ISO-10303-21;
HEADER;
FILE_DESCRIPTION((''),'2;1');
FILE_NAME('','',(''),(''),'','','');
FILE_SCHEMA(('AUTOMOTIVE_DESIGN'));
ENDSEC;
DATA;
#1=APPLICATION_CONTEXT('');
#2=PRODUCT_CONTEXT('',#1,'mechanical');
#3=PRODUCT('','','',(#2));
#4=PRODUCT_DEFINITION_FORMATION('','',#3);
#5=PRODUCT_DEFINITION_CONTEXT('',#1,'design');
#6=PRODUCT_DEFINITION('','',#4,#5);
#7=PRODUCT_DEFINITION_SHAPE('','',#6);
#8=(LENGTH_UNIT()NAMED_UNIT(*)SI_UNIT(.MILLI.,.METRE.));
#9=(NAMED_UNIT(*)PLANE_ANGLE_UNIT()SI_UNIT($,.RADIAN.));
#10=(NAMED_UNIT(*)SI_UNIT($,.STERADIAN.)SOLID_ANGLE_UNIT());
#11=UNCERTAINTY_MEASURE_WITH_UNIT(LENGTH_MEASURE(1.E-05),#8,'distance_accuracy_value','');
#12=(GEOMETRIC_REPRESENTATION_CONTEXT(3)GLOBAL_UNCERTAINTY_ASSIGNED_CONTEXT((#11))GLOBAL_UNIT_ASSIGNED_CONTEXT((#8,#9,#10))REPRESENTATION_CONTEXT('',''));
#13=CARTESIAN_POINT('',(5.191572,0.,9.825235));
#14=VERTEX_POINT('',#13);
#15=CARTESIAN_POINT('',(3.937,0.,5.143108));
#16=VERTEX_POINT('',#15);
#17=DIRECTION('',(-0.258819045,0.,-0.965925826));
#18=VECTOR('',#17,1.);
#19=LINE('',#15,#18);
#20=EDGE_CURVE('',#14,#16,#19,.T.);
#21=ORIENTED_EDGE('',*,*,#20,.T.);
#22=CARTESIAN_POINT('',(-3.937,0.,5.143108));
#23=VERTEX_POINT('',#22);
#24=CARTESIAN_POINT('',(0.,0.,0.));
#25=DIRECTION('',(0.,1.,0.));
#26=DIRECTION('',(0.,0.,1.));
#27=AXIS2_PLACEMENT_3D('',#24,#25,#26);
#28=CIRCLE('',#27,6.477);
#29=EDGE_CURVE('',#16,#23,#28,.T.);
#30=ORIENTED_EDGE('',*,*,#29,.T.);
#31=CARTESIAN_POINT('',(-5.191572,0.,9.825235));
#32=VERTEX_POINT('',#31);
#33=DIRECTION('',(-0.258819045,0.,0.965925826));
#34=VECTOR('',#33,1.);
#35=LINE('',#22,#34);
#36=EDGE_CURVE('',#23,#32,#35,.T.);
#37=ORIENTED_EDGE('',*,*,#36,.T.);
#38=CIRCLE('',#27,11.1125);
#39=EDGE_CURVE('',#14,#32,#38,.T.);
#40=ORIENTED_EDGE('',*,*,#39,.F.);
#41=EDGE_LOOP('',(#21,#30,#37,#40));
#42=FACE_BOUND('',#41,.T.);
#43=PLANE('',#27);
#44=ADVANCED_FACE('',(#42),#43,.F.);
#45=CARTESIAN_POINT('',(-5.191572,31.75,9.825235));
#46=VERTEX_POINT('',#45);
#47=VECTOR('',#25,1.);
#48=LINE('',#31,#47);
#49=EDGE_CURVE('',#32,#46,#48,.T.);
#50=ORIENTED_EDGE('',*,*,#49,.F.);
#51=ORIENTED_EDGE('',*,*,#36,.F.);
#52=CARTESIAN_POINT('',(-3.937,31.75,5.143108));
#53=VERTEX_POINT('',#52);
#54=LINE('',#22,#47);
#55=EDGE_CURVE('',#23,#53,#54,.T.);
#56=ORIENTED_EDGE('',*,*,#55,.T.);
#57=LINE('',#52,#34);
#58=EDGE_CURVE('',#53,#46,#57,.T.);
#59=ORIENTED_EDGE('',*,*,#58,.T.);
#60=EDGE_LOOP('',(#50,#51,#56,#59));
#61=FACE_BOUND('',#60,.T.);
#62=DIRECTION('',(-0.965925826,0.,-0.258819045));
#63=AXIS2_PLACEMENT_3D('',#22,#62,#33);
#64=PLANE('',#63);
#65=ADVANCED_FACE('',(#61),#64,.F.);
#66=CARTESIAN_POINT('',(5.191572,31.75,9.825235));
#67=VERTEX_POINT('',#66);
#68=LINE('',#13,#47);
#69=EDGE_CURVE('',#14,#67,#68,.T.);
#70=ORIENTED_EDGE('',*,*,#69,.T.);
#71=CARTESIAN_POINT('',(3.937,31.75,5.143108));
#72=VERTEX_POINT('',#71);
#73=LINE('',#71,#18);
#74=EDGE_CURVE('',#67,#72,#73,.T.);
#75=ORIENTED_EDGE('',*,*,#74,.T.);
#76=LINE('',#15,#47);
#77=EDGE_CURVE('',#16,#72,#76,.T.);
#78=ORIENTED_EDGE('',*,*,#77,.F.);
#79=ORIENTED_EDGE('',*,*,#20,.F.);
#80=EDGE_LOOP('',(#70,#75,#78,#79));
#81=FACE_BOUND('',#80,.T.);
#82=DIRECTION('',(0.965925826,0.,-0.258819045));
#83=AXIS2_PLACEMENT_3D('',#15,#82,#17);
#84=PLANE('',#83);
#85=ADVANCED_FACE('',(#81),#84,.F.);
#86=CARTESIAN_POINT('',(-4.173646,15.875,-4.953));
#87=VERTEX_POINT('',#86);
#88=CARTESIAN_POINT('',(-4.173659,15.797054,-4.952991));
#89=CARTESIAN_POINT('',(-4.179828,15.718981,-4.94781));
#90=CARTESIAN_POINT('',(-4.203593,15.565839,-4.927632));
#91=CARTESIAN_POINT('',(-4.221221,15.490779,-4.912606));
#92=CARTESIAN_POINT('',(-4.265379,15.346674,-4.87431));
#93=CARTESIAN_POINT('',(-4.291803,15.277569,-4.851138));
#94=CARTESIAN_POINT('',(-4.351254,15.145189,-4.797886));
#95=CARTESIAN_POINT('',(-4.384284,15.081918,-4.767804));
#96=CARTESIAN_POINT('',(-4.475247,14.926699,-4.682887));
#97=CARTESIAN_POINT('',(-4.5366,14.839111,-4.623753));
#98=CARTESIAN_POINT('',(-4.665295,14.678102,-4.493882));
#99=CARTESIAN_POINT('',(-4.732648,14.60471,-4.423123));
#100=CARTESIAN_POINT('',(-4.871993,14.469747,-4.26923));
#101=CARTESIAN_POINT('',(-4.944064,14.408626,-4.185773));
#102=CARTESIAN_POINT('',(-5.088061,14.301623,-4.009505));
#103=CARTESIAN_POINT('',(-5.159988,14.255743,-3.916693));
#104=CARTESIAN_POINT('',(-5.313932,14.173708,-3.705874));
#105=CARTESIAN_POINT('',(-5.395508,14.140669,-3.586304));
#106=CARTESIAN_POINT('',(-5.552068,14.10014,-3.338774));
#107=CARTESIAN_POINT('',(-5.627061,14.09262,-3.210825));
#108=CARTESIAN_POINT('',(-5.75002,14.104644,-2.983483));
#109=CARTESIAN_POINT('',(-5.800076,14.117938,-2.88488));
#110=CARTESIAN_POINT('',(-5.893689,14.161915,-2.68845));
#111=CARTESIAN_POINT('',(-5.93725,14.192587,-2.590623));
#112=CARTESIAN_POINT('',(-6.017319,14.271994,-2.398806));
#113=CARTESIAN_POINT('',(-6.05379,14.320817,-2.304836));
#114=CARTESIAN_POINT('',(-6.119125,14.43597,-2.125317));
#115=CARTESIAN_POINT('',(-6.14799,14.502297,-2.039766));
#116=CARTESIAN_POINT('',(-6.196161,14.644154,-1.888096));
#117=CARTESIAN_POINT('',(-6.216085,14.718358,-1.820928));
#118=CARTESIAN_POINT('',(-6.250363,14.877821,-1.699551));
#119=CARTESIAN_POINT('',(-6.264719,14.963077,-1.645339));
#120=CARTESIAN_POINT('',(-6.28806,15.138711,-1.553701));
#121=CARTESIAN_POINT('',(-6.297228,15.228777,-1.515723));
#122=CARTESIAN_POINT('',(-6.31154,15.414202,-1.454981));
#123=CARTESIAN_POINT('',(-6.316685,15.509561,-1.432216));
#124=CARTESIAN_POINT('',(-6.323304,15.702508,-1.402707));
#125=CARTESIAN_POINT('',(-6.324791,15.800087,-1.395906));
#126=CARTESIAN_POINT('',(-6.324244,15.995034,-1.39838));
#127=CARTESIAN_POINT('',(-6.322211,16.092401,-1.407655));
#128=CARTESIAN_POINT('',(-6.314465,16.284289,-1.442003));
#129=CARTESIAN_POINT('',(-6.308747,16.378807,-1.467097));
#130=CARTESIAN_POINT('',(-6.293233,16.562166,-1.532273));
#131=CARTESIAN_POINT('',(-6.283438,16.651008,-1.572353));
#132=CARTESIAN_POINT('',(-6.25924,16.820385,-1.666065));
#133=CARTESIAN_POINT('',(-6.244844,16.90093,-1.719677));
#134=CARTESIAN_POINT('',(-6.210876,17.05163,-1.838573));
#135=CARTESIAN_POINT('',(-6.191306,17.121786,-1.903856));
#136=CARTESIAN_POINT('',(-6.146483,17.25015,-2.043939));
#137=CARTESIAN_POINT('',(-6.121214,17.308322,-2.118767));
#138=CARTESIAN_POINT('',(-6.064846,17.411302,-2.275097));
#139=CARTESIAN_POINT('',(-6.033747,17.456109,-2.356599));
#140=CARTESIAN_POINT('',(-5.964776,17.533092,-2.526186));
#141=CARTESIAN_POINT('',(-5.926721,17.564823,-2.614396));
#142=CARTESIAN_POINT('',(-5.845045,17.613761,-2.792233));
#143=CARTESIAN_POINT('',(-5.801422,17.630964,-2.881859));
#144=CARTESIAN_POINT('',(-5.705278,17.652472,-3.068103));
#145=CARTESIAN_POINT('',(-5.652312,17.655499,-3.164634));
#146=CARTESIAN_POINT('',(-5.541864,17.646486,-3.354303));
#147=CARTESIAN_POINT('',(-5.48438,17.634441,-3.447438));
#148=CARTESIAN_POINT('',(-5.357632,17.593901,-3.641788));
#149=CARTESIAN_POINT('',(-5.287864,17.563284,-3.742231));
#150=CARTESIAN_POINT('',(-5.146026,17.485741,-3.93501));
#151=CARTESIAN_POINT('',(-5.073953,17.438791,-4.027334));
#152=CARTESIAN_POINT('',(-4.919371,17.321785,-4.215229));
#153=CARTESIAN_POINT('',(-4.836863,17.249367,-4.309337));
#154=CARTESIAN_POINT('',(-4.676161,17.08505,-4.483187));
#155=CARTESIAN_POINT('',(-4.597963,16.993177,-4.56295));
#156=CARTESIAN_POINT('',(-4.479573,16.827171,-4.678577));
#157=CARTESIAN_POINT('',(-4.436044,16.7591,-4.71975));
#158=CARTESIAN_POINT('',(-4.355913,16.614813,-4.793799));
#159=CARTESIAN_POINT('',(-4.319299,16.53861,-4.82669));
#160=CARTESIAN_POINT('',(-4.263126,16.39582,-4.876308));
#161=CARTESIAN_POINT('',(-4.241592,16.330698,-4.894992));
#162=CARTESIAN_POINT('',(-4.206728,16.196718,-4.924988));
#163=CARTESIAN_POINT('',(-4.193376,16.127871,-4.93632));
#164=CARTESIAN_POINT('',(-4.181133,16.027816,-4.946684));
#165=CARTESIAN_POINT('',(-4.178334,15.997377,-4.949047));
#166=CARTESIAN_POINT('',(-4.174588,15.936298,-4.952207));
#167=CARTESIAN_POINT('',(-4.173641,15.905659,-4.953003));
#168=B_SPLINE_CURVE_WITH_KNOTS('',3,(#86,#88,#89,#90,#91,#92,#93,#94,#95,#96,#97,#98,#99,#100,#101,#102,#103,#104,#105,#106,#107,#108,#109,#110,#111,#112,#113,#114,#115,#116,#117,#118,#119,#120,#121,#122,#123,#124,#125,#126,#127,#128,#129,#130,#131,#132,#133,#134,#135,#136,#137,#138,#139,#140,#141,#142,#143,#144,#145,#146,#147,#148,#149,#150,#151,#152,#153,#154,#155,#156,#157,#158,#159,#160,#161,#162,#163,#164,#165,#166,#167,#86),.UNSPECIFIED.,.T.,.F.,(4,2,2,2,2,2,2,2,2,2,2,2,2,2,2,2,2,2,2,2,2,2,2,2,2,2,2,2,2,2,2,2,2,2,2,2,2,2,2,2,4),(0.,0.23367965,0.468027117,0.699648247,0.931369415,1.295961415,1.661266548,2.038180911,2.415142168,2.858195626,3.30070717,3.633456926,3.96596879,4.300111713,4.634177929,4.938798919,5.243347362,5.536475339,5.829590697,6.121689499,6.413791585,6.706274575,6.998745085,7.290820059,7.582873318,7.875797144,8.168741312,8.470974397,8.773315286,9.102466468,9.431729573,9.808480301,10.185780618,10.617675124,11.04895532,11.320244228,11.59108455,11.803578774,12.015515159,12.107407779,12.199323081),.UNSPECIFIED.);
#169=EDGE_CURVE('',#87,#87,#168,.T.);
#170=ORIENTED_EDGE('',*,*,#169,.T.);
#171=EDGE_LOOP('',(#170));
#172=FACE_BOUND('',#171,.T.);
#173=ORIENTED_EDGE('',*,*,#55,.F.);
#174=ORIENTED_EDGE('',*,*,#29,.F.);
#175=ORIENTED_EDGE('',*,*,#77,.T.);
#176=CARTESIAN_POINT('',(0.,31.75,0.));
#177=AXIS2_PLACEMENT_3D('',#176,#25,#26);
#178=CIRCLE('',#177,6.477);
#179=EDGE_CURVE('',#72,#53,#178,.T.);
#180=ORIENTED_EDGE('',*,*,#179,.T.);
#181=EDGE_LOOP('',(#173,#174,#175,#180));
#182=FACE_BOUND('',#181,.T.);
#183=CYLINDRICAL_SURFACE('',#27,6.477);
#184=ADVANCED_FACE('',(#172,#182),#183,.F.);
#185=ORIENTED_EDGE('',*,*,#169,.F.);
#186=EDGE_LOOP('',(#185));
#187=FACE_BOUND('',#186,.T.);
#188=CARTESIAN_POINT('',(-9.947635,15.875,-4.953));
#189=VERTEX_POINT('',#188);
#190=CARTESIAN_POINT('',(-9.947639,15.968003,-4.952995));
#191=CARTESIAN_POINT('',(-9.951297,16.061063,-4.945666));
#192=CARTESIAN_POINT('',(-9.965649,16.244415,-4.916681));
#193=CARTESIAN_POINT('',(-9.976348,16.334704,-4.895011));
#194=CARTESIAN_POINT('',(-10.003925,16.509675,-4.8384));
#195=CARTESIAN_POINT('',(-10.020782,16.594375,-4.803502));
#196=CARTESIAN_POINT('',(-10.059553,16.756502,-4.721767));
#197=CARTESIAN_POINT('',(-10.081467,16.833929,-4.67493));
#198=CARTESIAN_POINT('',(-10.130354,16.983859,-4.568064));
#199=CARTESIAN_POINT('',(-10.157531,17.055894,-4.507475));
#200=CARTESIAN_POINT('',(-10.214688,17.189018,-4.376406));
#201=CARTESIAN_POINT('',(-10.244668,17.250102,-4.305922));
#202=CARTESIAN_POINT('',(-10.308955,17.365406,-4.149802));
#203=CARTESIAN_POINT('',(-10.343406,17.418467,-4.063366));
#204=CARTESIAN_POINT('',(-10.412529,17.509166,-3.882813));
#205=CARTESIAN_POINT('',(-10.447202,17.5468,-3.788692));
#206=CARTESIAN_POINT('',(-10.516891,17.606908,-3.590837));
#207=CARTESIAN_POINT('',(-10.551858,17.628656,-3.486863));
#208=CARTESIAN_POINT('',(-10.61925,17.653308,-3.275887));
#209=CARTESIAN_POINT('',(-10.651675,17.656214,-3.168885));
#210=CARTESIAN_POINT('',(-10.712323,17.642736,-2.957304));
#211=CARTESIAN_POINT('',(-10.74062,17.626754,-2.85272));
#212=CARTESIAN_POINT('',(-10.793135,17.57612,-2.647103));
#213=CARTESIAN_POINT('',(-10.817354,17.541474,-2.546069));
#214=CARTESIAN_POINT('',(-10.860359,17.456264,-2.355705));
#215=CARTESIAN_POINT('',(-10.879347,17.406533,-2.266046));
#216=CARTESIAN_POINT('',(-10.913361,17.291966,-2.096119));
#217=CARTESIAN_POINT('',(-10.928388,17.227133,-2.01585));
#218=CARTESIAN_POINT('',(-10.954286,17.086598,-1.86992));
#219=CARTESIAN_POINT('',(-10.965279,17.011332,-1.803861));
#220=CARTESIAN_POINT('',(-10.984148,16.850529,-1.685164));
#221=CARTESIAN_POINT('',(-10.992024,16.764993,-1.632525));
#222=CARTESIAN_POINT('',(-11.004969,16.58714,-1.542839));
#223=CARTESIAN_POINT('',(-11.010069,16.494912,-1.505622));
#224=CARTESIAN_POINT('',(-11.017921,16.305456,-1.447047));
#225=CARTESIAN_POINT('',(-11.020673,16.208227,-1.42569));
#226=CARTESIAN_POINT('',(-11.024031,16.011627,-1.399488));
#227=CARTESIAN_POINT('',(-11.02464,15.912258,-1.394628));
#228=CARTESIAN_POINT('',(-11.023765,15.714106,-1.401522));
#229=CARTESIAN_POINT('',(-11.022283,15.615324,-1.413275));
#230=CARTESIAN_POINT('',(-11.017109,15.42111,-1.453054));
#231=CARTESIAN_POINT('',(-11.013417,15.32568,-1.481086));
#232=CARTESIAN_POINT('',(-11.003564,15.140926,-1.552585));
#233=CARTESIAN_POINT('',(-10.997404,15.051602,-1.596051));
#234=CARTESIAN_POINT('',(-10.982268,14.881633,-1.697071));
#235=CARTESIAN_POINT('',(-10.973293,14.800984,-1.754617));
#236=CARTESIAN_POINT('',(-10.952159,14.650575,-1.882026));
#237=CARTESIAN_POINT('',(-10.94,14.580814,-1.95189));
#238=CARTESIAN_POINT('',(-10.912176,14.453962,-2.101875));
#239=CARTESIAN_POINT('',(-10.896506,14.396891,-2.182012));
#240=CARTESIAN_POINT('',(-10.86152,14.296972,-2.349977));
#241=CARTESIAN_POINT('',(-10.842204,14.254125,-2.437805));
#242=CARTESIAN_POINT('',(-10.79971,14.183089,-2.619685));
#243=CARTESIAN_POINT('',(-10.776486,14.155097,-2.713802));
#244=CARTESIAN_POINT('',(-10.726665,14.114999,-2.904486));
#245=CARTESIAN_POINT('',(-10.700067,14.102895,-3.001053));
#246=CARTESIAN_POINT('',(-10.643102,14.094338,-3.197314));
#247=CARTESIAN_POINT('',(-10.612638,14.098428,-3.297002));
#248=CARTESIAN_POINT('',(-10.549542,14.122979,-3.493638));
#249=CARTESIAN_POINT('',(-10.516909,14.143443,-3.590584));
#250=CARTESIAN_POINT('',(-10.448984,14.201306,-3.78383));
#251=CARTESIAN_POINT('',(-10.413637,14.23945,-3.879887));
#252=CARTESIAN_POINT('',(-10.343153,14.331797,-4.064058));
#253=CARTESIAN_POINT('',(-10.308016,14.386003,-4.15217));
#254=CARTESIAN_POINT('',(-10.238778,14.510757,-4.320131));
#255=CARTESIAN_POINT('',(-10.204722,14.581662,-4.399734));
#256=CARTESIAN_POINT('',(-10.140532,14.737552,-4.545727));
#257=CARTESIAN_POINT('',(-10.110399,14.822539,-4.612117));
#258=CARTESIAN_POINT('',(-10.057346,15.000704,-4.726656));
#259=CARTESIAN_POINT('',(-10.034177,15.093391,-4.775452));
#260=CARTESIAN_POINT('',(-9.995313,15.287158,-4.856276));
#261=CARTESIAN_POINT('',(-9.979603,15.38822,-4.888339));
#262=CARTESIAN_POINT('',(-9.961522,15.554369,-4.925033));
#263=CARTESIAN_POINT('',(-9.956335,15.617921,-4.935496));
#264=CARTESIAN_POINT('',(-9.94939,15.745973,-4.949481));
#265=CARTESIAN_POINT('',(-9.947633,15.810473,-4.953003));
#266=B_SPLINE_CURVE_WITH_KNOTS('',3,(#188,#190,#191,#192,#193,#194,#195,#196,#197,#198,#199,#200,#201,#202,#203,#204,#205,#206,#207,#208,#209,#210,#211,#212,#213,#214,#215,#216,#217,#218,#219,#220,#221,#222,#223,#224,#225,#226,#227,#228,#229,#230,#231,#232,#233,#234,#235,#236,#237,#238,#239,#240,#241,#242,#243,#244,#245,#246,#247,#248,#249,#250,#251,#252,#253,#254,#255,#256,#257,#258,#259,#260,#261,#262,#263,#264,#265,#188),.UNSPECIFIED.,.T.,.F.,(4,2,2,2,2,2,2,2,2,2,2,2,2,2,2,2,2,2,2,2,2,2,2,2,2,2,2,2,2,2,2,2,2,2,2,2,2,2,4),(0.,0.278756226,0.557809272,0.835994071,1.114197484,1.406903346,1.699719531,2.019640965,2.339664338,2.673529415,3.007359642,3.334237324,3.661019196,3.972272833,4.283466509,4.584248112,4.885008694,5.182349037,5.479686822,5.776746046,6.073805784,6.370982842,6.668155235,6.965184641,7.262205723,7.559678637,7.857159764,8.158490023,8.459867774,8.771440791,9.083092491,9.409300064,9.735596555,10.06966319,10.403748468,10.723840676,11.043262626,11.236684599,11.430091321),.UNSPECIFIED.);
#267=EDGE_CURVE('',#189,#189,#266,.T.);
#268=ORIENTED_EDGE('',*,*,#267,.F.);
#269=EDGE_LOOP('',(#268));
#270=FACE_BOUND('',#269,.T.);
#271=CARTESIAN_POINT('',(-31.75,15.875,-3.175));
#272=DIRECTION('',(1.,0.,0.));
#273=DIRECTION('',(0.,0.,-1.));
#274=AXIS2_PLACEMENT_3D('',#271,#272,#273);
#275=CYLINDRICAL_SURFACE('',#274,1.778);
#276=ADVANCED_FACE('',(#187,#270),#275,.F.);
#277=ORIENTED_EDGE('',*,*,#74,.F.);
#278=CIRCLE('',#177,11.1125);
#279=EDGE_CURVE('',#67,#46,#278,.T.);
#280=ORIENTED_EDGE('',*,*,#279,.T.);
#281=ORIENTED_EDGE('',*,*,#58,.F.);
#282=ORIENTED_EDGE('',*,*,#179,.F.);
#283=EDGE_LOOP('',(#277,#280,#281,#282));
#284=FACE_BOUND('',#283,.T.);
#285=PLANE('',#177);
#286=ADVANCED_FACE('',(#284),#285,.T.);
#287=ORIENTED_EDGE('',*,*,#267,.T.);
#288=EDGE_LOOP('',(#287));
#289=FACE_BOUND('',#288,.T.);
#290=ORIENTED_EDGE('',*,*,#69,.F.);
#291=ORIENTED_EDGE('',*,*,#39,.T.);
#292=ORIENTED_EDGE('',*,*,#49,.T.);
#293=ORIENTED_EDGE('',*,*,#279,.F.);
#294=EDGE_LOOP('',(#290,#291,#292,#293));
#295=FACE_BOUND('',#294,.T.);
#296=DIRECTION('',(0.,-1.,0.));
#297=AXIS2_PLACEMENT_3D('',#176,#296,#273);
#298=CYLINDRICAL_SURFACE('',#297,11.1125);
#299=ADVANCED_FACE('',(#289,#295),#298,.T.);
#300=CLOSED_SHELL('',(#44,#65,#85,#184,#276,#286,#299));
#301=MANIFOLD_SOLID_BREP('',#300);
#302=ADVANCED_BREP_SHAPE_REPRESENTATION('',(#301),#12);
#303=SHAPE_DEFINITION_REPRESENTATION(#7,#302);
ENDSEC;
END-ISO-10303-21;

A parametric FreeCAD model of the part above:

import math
import FreeCAD as App
import Part
import Sketcher
Q = App.Units.Quantity

doc = App.newDocument("Part")
body = doc.addObject("PartDesign::Body", "Body")

sketch1 = doc.addObject("Sketcher::SketchObject", "Sketch")
body.addObject(sketch1)
sketch1.AttachmentSupport = (doc.XZ_Plane, [""])
sketch1.MapMode = "FlatFace"
sketch1.addGeometry(Part.Circle(App.Vector(0, 0, 0), App.Vector(0, 0, 1), 11), False)
sketch1.addConstraint(Sketcher.Constraint("Coincident", 0, 3, -1, 1))
sketch1.addConstraint(Sketcher.Constraint("Diameter", 0, Q("0.875 in")))
pad1 = doc.addObject("PartDesign::Pad", "Pad")
body.addObject(pad1)
pad1.Profile = sketch1
pad1.Length = Q("1.25 in")
pad1.Reversed = True

sketch2 = doc.addObject("Sketcher::SketchObject", "Sketch001")
body.addObject(sketch2)
sketch2.AttachmentSupport = (doc.XZ_Plane, [""])
sketch2.MapMode = "FlatFace"
sketch2.AttachmentOffset = App.Placement(App.Vector(0, 0, -1.25 * 25.4), App.Rotation())
sketch2.addGeometry(Part.LineSegment(App.Vector(-3.9, 5.1, 0), App.Vector(-5.2, 9.8, 0)), False)
sketch2.addGeometry(Part.ArcOfCircle(Part.Circle(App.Vector(0, 0, 0), App.Vector(0, 0, 1), 11.1), math.radians(62), math.radians(118)), False)
sketch2.addGeometry(Part.LineSegment(App.Vector(5.2, 9.8, 0), App.Vector(3.9, 5.1, 0)), False)
sketch2.addGeometry(Part.ArcOfCircle(Part.Circle(App.Vector(0, 0, 0), App.Vector(0, 0, 1), 6.5), math.radians(127), math.radians(413)), False)
sketch2.addConstraint(Sketcher.Constraint("Coincident", 0, 2, 1, 2))
sketch2.addConstraint(Sketcher.Constraint("Coincident", 1, 1, 2, 1))
sketch2.addConstraint(Sketcher.Constraint("Coincident", 2, 2, 3, 2))
sketch2.addConstraint(Sketcher.Constraint("Coincident", 3, 1, 0, 1))
sketch2.addConstraint(Sketcher.Constraint("Coincident", 1, 3, -1, 1))
sketch2.addConstraint(Sketcher.Constraint("Coincident", 3, 3, -1, 1))
sketch2.addConstraint(Sketcher.Constraint("Horizontal", 0, 2, 1, 1))
sketch2.addConstraint(Sketcher.Constraint("Horizontal", 2, 2, 3, 1))
sketch2.addConstraint(Sketcher.Constraint("Angle", 0, Q("105 deg")))
sketch2.addConstraint(Sketcher.Constraint("Radius", 1, Q("0.4375 in")))
sketch2.addConstraint(Sketcher.Constraint("Radius", 3, Q("0.255 in")))
sketch2.addConstraint(Sketcher.Constraint("DistanceX", 3, 1, 2, 2, Q("0.31 in")))
pocket1 = doc.addObject("PartDesign::Pocket", "Pocket")
body.addObject(pocket1)
pocket1.Profile = sketch2
pocket1.Type = "ThroughAll"
pocket1.Reversed = True

sketch3 = doc.addObject("Sketcher::SketchObject", "Sketch002")
body.addObject(sketch3)
sketch3.AttachmentSupport = (doc.YZ_Plane, [""])
sketch3.MapMode = "FlatFace"
sketch3.addGeometry(Part.Circle(App.Vector(15.9, -3.2, 0), App.Vector(0, 0, 1), 1.8), False)
sketch3.addConstraint(Sketcher.Constraint("Diameter", 0, Q("0.14 in")))
sketch3.addConstraint(Sketcher.Constraint("DistanceX", -1, 1, 0, 3, Q("0.625 in")))
sketch3.addConstraint(Sketcher.Constraint("DistanceY", 0, 3, -1, 1, Q("0.125 in")))
pocket2 = doc.addObject("PartDesign::Pocket", "Pocket001")
body.addObject(pocket2)
pocket2.Profile = sketch3
pocket2.Length = Q("1.25 in")

doc.recompute()
